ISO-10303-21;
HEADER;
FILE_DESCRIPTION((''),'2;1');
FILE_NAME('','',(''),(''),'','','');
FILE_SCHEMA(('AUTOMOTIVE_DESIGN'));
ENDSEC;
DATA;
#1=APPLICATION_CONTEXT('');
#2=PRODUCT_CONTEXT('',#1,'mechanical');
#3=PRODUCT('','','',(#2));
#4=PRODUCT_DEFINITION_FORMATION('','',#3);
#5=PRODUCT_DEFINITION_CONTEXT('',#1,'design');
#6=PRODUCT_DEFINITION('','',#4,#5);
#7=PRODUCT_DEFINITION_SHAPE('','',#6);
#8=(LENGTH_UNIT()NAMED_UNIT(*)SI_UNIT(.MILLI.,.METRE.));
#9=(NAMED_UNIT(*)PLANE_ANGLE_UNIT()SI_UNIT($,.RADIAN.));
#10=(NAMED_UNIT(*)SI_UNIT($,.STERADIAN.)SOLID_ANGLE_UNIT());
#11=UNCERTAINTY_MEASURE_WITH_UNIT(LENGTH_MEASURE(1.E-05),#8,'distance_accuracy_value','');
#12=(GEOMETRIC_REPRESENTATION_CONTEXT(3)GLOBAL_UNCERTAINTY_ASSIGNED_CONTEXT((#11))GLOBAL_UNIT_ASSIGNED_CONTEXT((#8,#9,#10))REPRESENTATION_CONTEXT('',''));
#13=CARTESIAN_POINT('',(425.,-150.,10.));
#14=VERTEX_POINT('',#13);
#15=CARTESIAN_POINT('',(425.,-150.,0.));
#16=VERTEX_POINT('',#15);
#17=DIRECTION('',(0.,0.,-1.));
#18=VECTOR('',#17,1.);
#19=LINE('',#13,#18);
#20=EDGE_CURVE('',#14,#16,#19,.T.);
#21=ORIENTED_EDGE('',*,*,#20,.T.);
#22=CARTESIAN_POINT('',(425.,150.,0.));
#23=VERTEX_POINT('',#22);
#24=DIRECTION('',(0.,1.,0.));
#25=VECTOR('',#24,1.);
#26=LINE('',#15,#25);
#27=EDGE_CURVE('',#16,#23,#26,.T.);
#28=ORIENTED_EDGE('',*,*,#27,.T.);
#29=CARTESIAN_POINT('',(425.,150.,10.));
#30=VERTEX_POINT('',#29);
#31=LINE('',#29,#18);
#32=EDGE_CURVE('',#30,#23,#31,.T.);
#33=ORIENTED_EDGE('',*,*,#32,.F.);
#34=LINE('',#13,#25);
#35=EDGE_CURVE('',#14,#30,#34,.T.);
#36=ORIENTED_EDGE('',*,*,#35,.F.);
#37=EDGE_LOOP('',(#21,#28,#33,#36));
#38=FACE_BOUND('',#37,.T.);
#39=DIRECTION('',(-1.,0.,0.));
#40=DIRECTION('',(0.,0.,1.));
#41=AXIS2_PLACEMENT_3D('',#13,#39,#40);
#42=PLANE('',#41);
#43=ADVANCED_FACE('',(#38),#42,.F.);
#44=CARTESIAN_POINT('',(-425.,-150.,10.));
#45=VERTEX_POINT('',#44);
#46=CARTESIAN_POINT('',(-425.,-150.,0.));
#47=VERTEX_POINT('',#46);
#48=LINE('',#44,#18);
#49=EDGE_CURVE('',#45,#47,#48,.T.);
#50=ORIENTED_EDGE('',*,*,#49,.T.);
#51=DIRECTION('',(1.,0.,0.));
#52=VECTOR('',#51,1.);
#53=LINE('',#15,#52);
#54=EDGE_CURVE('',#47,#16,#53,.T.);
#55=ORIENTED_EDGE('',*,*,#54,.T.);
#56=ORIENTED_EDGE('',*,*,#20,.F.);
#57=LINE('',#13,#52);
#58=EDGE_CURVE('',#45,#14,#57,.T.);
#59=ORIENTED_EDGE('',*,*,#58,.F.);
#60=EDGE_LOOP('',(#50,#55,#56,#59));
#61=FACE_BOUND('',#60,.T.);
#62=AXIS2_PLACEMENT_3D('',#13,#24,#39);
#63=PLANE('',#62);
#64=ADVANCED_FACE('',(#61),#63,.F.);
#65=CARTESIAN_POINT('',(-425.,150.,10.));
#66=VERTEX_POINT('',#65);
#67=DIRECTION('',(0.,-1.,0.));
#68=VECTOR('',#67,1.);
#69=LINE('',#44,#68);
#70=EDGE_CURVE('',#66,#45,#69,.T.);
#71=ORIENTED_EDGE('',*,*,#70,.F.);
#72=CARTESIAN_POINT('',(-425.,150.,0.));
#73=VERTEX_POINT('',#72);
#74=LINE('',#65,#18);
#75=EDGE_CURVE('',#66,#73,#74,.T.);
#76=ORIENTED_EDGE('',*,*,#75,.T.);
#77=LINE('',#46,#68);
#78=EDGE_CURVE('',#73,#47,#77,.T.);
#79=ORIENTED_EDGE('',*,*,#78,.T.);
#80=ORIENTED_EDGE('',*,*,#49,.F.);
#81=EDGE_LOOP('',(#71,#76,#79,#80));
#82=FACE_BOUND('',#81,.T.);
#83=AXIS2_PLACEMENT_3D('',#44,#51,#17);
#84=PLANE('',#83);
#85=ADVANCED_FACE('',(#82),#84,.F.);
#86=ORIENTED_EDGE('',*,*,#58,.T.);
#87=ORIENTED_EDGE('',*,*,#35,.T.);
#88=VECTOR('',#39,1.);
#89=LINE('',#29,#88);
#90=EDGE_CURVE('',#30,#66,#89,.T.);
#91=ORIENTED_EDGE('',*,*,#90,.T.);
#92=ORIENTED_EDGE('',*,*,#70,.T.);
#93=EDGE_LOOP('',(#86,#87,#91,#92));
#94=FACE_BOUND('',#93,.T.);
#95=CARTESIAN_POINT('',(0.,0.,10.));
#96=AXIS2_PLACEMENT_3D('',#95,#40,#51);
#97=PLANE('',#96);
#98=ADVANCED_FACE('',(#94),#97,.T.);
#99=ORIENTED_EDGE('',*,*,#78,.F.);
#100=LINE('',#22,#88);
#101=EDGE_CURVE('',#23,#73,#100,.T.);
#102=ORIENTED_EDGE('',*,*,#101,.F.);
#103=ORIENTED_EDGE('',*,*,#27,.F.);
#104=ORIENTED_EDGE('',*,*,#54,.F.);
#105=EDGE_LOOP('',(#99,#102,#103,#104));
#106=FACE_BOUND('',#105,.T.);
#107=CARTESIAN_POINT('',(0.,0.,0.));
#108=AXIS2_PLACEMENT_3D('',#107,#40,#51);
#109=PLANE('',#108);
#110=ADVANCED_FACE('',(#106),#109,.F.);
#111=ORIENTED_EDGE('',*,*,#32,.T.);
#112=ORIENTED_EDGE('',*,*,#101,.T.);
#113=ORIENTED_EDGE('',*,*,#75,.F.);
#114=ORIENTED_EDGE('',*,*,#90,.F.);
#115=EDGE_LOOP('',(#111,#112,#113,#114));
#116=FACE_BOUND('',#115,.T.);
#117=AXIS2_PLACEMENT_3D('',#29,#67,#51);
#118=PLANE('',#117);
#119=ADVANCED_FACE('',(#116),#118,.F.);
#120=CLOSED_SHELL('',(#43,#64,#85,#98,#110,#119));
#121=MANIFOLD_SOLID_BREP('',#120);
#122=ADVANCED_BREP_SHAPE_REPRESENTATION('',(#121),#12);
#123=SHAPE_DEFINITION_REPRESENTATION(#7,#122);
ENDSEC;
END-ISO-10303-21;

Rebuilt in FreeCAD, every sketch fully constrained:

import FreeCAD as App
import Part
import Sketcher
from FreeCAD import Vector
Q = App.Units.Quantity


def add_polygon(sketch, points):
    """Adds a closed chain of lines whose ends are joined by coincident constraints."""
    first, n = sketch.GeometryCount, len(points)
    for a, b in zip(points, points[1:] + points[:1]):
        sketch.addGeometry(Part.LineSegment(App.Vector(*a, 0), App.Vector(*b, 0)), False)
    for i in range(n):
        sketch.addConstraint(Sketcher.Constraint("Coincident", first + i, 2, first + (i + 1) % n, 1))

doc = App.newDocument("Part")
body = doc.addObject("PartDesign::Body", "Body")

sketch1 = body.newObject("Sketcher::SketchObject", "Sketch")
sketch1.AttachmentSupport = (doc.getObject("XY_Plane"), [""])
sketch1.MapMode = "FlatFace"
add_polygon(sketch1, [(-425, 150), (-425, -150), (425, -150), (425, 150)])
sketch1.addConstraint([
    Sketcher.Constraint("Vertical", 0),
    Sketcher.Constraint("Horizontal", 1),
    Sketcher.Constraint("Vertical", 2),
    Sketcher.Constraint("Horizontal", 3),
    Sketcher.Constraint("Symmetric", 0, 2, 2, 2, -1, 1),
    Sketcher.Constraint("DistanceX", 1, 1, 1, 2, Q("850 mm")),
    Sketcher.Constraint("DistanceY", 0, 2, 0, 1, Q("300 mm")),
])
pad1 = body.newObject("PartDesign::Pad", "Pad")
pad1.Profile = sketch1
pad1.Length = 10

doc.recompute()
